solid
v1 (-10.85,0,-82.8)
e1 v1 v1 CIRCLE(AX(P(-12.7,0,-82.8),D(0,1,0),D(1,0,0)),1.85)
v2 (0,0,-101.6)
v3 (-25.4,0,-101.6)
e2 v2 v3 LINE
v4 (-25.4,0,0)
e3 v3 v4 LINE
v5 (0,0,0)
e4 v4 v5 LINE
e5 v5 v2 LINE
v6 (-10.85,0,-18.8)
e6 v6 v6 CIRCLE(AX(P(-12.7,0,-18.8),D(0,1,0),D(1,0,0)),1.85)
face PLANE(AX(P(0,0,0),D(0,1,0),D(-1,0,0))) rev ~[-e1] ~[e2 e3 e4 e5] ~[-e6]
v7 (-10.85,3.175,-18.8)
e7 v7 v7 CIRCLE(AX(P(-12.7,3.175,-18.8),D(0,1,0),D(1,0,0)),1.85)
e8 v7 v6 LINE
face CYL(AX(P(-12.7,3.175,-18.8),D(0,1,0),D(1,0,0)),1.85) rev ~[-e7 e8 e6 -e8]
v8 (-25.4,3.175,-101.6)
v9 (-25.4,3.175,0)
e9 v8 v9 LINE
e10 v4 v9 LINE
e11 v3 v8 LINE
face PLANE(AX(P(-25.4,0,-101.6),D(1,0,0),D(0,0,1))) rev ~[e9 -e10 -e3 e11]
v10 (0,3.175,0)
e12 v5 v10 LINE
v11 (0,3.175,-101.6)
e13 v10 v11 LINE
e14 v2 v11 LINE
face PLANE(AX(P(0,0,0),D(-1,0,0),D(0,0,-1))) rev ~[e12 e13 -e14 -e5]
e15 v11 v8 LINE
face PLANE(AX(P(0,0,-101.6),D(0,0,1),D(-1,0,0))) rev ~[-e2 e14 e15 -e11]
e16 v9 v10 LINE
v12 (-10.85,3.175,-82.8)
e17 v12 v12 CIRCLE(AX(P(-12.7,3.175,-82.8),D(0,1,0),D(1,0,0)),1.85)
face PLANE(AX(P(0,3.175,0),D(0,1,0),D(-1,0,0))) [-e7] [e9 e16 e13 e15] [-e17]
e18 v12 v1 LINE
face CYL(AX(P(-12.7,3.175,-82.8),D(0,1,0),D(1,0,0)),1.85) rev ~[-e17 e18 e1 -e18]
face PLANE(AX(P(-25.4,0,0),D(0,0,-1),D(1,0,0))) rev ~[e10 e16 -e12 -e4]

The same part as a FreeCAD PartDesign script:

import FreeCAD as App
import Part
import Sketcher

V = App.Vector
Q = App.Units.Quantity

doc = App.newDocument("Part")
body = doc.addObject("PartDesign::Body", "Body")

sketch1 = doc.addObject("Sketcher::SketchObject", "Sketch")
body.addObject(sketch1)
sketch1.AttachmentSupport = (doc.XZ_Plane, [""])
sketch1.MapMode = "FlatFace"
sketch1.addGeometry(Part.LineSegment(V(-25, 0, 0), V(0, 0, 0)), False)
sketch1.addGeometry(Part.LineSegment(V(0, 0, 0), V(0, -102, 0)), False)
sketch1.addGeometry(Part.LineSegment(V(0, -102, 0), V(-25, -102, 0)), False)
sketch1.addGeometry(Part.LineSegment(V(-25, -102, 0), V(-25, 0, 0)), False)
sketch1.addConstraint(Sketcher.Constraint("Coincident", 0, 2, 1, 1))
sketch1.addConstraint(Sketcher.Constraint("Coincident", 1, 2, 2, 1))
sketch1.addConstraint(Sketcher.Constraint("Coincident", 2, 2, 3, 1))
sketch1.addConstraint(Sketcher.Constraint("Coincident", 3, 2, 0, 1))
sketch1.addConstraint(Sketcher.Constraint("Horizontal", 0))
sketch1.addConstraint(Sketcher.Constraint("Vertical", 1))
sketch1.addConstraint(Sketcher.Constraint("Horizontal", 2))
sketch1.addConstraint(Sketcher.Constraint("Vertical", 3))
sketch1.addConstraint(Sketcher.Constraint("Coincident", 0, 2, -1, 1))
sketch1.addConstraint(Sketcher.Constraint("DistanceX", 0, 1, 0, 2, Q("1 in")))
sketch1.addConstraint(Sketcher.Constraint("DistanceY", 1, 2, 1, 1, Q("4 in")))
pad1 = doc.addObject("PartDesign::Pad", "Pad")
body.addObject(pad1)
pad1.Profile = sketch1
pad1.Length = Q("0.125 in")
pad1.Reversed = True

sketch2 = doc.addObject("Sketcher::SketchObject", "Sketch001")
body.addObject(sketch2)
sketch2.AttachmentSupport = (doc.XZ_Plane, [""])
sketch2.MapMode = "FlatFace"
sketch2.AttachmentOffset = App.Placement(V(0, 0, -0.125 * 25.4), App.Rotation())
sketch2.addGeometry(Part.Circle(V(-12.7, -18.8, 0), V(0, 0, 1), 1.9), False)
sketch2.addGeometry(Part.Circle(V(-12.7, -82.8, 0), V(0, 0, 1), 1.9), False)
sketch2.addConstraint(Sketcher.Constraint("Equal", 0, 1))
sketch2.addConstraint(Sketcher.Constraint("Vertical", 0, 3, 1, 3))
sketch2.addConstraint(Sketcher.Constraint("DistanceX", 0, 3, -1, 1, Q("0.5 in")))
sketch2.addConstraint(Sketcher.Constraint("Diameter", 0, Q("3.7 mm")))
sketch2.addConstraint(Sketcher.Constraint("DistanceY", 0, 3, -1, 1, Q("18.8 mm")))
sketch2.addConstraint(Sketcher.Constraint("DistanceY", 1, 3, -1, 1, Q("82.8 mm")))
pocket1 = doc.addObject("PartDesign::Pocket", "Pocket")
body.addObject(pocket1)
pocket1.Profile = sketch2
pocket1.Length = Q("0.9375 in")
pocket1.Reversed = True

doc.recompute()
